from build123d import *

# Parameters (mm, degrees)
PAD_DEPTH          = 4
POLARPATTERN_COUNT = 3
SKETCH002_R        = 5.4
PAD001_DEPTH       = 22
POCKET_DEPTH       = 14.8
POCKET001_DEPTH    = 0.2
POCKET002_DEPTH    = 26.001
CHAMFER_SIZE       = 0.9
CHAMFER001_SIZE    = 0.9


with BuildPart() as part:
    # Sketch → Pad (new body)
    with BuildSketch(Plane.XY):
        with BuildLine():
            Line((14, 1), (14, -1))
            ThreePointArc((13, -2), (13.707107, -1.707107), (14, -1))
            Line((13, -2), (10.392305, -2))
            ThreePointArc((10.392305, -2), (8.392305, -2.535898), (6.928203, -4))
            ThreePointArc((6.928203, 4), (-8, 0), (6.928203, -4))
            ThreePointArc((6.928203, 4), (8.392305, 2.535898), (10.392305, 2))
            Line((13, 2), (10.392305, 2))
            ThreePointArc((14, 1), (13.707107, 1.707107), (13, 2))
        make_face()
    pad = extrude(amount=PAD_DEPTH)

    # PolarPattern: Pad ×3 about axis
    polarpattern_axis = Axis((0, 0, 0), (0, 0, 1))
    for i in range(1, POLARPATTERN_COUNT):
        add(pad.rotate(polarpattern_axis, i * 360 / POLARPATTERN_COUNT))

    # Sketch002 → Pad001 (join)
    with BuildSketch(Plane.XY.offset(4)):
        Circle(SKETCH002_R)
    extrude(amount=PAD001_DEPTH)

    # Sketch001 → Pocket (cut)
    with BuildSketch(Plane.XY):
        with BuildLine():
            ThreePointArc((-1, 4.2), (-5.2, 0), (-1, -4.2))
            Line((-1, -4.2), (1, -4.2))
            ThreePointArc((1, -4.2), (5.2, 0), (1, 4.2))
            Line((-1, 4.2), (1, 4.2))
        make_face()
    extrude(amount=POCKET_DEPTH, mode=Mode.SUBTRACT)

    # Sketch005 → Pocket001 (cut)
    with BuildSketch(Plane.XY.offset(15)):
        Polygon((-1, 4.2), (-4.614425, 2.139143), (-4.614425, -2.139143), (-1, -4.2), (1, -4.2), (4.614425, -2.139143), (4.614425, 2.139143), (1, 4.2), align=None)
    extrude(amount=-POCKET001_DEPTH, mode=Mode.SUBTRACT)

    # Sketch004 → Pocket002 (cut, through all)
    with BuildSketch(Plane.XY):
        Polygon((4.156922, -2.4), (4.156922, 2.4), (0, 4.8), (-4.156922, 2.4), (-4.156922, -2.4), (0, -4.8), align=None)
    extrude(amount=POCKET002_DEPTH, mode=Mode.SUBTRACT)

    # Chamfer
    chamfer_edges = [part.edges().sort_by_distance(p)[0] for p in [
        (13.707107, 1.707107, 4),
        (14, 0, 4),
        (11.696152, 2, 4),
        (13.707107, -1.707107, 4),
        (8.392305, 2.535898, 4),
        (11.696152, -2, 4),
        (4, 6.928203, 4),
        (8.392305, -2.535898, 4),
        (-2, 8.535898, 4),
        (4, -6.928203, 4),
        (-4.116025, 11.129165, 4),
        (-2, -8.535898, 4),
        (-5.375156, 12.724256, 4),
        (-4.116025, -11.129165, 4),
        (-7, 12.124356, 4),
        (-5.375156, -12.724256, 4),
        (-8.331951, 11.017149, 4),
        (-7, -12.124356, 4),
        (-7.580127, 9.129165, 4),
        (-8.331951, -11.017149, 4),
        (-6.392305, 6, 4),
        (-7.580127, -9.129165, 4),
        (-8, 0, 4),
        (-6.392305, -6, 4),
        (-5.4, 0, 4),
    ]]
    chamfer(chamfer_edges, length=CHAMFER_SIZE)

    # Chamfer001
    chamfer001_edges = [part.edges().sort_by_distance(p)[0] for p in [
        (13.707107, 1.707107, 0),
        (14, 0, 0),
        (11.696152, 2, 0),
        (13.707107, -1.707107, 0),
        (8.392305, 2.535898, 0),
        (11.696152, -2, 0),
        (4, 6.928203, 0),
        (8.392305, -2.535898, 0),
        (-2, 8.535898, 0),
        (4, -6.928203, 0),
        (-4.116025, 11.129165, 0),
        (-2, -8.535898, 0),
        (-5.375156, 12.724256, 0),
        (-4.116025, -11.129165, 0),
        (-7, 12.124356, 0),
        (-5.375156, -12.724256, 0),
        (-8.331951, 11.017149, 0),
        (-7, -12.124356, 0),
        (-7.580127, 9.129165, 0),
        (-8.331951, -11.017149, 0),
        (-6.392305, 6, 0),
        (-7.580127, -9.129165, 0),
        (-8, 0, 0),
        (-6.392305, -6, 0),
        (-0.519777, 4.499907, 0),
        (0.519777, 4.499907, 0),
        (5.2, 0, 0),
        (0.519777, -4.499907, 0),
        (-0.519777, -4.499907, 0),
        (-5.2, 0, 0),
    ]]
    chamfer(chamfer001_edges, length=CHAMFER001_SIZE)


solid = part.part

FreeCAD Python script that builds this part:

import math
import FreeCAD as App
import Part
import Sketcher
from FreeCAD import Vector
Q = App.Units.Quantity


def edges_at(feature, points):
    """Names of the edges that pass closest to the given points."""
    edges = feature.Shape.Edges
    near = lambda p: min(range(len(edges)), key=lambda i: edges[i].distToShape(Part.Vertex(*p))[0])
    return sorted({f"Edge{near(p) + 1}" for p in points})

doc = App.newDocument("Part")
params = doc.addObject("Spreadsheet::Sheet", "Params")
for row, (alias, value) in enumerate([
    ("sketch1_radius", "0.999999 mm"),
    ("sketch1_radius2", "3.999999 mm"),
    ("sketch1_radius3", "8 mm"),
    ("sketch1_height", "2 mm"),
    ("pad1_length", "4 mm"),
    ("sketch2_diameter", "10.8 mm"),
    ("pad2_length", "22 mm"),
    ("sketch3_radius", "4.2 mm"),
    ("sketch3_width", "2 mm"),
    ("pocket1_length", "14.8 mm"),
    ("sketch4_width", "2 mm"),
    ("pocket2_length", "0.2 mm"),
    ("sketch5_height", "4.8 mm"),
    ("sketch5_length", "4.8 mm"),
    ("chamfer_size", "0.9 mm"),
    ("chamfer2_size", "0.9 mm"),
], start=1):
    params.set(f"A{row}", alias)
    params.set(f"B{row}", "=" + value)
    params.setAlias(f"B{row}", alias)

body = doc.addObject("PartDesign::Body", "Body")

# Sketch on XY plane
sketch1 = doc.addObject("Sketcher::SketchObject", "Sketch")
body.addObject(sketch1)
sketch1.AttachmentSupport = (doc.XY_Plane, [""])
sketch1.MapMode = "FlatFace"
sketch1.addGeometry([
    Part.LineSegment(Vector(14, -1, 0), Vector(14, 1, 0)),  # 0
    Part.ArcOfCircle(Part.Circle(Vector(13.000001, 1.000001, 0), Vector(0, 0, 1), 0.999999), math.radians(-0.000043), math.radians(90.000043)),  # 1
    Part.LineSegment(Vector(13, 2, 0), Vector(10.392305, 2, 0)),  # 2
    Part.ArcOfCircle(Part.Circle(Vector(10.392304, 5.999999, 0), Vector(0, 0, 1), 3.999999), math.radians(-150.000008), math.radians(-89.999987)),  # 3
    Part.ArcOfCircle(Part.Circle(Vector(0, 0, 0), Vector(0, 0, 1), 8), math.radians(30), math.radians(330)),  # 4
    Part.ArcOfCircle(Part.Circle(Vector(10.392304, -5.999999, 0), Vector(0, 0, 1), 3.999999), math.radians(89.999987), math.radians(150.000008)),  # 5
    Part.LineSegment(Vector(10.392305, -2, 0), Vector(13, -2, 0)),  # 6
    Part.ArcOfCircle(Part.Circle(Vector(13.000001, -1.000001, 0), Vector(0, 0, 1), 0.999999), math.radians(-90.000043), math.radians(0.000043)),  # 7
], False)
sketch1.addConstraint([
    Sketcher.Constraint("Tangent", 0, 2, 1, 1),
    Sketcher.Constraint("Tangent", 1, 2, 2, 1),
    Sketcher.Constraint("Tangent", 2, 2, 3, 2),
    Sketcher.Constraint("Tangent", 3, 1, 4, 1),
    Sketcher.Constraint("Tangent", 4, 2, 5, 2),
    Sketcher.Constraint("Tangent", 5, 1, 6, 1),
    Sketcher.Constraint("Tangent", 6, 2, 7, 1),
    Sketcher.Constraint("Tangent", 7, 2, 0, 1),
    Sketcher.Constraint("Vertical", 0),
    Sketcher.Constraint("Horizontal", 2),
    Sketcher.Constraint("Horizontal", 6),
    Sketcher.Constraint("Coincident", 4, 3, -1, 1),
    Sketcher.Constraint("Equal", 3, 5),
    Sketcher.Constraint("Equal", 1, 7),
    Sketcher.Constraint("Vertical", 3, 3, 5, 3),
    Sketcher.Constraint("Radius", 1, 0.999999),
    Sketcher.Constraint("Radius", 3, 3.999999),
    Sketcher.Constraint("Radius", 4, 8.0),
    Sketcher.Constraint("DistanceY", 0, 1, 0, 2, 2.0),
    Sketcher.Constraint("DistanceX", -1, 1, 1, 3, 13.000001),
])
sketch1.setExpression("Constraints[15]", "Params.sketch1_radius")
sketch1.setExpression("Constraints[16]", "Params.sketch1_radius2")
sketch1.setExpression("Constraints[17]", "Params.sketch1_radius3")
sketch1.setExpression("Constraints[18]", "Params.sketch1_height")
pad1 = doc.addObject("PartDesign::Pad", "Pad")
body.addObject(pad1)
pad1.Profile = sketch1
pad1.setExpression("Length", "Params.pad1_length")
doc.recompute()

polarpattern = doc.addObject("PartDesign::PolarPattern", "PolarPattern")
body.addObject(polarpattern)
polarpattern.Originals = [pad1]
polarpattern.Axis = (doc.Z_Axis, [""])
polarpattern.Angle = 360
polarpattern.Occurrences = 3
body.Tip = polarpattern

# Sketch on XY plane
sketch2 = doc.addObject("Sketcher::SketchObject", "Sketch001")
body.addObject(sketch2)
sketch2.AttachmentSupport = (doc.XY_Plane, [""])
sketch2.MapMode = "FlatFace"
sketch2.AttachmentOffset = App.Placement(Vector(0, 0, 4), App.Rotation())
sketch2.addGeometry(Part.Circle(Vector(0, 0, 0), Vector(0, 0, 1), 5.4), False)
sketch2.addConstraint([
    Sketcher.Constraint("Coincident", 0, 3, -1, 1),
    Sketcher.Constraint("Diameter", 0, 10.8),
])
sketch2.setExpression("Constraints[1]", "Params.sketch2_diameter")
pad2 = doc.addObject("PartDesign::Pad", "Pad001")
body.addObject(pad2)
pad2.Profile = sketch2
pad2.setExpression("Length", "Params.pad2_length")

# Sketch on XY plane
sketch3 = doc.addObject("Sketcher::SketchObject", "Sketch002")
body.addObject(sketch3)
sketch3.AttachmentSupport = (doc.XY_Plane, [""])
sketch3.MapMode = "FlatFace"
sketch3.addGeometry([
    Part.ArcOfCircle(Part.Circle(Vector(-1, 0, 0), Vector(0, 0, 1), 4.2), math.radians(90), math.radians(270)),
    Part.LineSegment(Vector(-1, -4.2, 0), Vector(1, -4.2, 0)),
    Part.ArcOfCircle(Part.Circle(Vector(1, 0, 0), Vector(0, 0, 1), 4.2), math.radians(-90), math.radians(90)),
    Part.LineSegment(Vector(1, 4.2, 0), Vector(-1, 4.2, 0)),
], False)
sketch3.addConstraint([
    Sketcher.Constraint("Tangent", 0, 2, 1, 1),
    Sketcher.Constraint("Tangent", 1, 2, 2, 1),
    Sketcher.Constraint("Tangent", 2, 2, 3, 1),
    Sketcher.Constraint("Tangent", 3, 2, 0, 1),
    Sketcher.Constraint("Horizontal", 1),
    Sketcher.Constraint("Horizontal", 3),
    Sketcher.Constraint("Symmetric", 0, 3, 2, 3, -1, 1),
    Sketcher.Constraint("Radius", 0, 4.2),
    Sketcher.Constraint("DistanceX", 1, 1, 1, 2, 2.0),
])
sketch3.setExpression("Constraints[7]", "Params.sketch3_radius")
sketch3.setExpression("Constraints[8]", "Params.sketch3_width")
pocket1 = doc.addObject("PartDesign::Pocket", "Pocket")
body.addObject(pocket1)
pocket1.Profile = sketch3
pocket1.setExpression("Length", "Params.pocket1_length")
pocket1.Reversed = True

# Sketch on XY plane
sketch4 = doc.addObject("Sketcher::SketchObject", "Sketch003")
body.addObject(sketch4)
sketch4.AttachmentSupport = (doc.XY_Plane, [""])
sketch4.MapMode = "FlatFace"
sketch4.AttachmentOffset = App.Placement(Vector(0, 0, 15), App.Rotation())
sketch4.addGeometry([
    Part.LineSegment(Vector(-1, 4.2, 0), Vector(-4.614425, 2.139143, 0)),  # 0
    Part.LineSegment(Vector(-4.614425, 2.139143, 0), Vector(-4.614425, -2.139143, 0)),  # 1
    Part.LineSegment(Vector(-4.614425, -2.139143, 0), Vector(-1, -4.2, 0)),  # 2
    Part.LineSegment(Vector(-1, -4.2, 0), Vector(1, -4.2, 0)),  # 3
    Part.LineSegment(Vector(1, -4.2, 0), Vector(4.614425, -2.139143, 0)),  # 4
    Part.LineSegment(Vector(4.614425, -2.139143, 0), Vector(4.614425, 2.139143, 0)),  # 5
    Part.LineSegment(Vector(4.614425, 2.139143, 0), Vector(1, 4.2, 0)),  # 6
    Part.LineSegment(Vector(1, 4.2, 0), Vector(-1, 4.2, 0)),  # 7
], False)
sketch4.addConstraint([
    Sketcher.Constraint("Coincident", 0, 2, 1, 1),
    Sketcher.Constraint("Coincident", 1, 2, 2, 1),
    Sketcher.Constraint("Coincident", 2, 2, 3, 1),
    Sketcher.Constraint("Coincident", 3, 2, 4, 1),
    Sketcher.Constraint("Coincident", 4, 2, 5, 1),
    Sketcher.Constraint("Coincident", 5, 2, 6, 1),
    Sketcher.Constraint("Coincident", 6, 2, 7, 1),
    Sketcher.Constraint("Coincident", 7, 2, 0, 1),
    Sketcher.Constraint("Vertical", 1),
    Sketcher.Constraint("Horizontal", 3),
    Sketcher.Constraint("Vertical", 5),
    Sketcher.Constraint("Horizontal", 7),
    Sketcher.Constraint("Symmetric", 0, 2, 4, 2, -1, 1),
    Sketcher.Constraint("Symmetric", 2, 2, 6, 2, -1, 1),
    Sketcher.Constraint("Parallel", 0, 4),
    Sketcher.Constraint("Parallel", 2, 6),
    Sketcher.Constraint("Horizontal", 1, 2, 4, 2),
    Sketcher.Constraint("Vertical", 3, 2, 6, 2),
    Sketcher.Constraint("DistanceX", 3, 1, 3, 2, 2.0),
    Sketcher.Constraint("DistanceY", 2, 2, -1, 1, 4.2),
    Sketcher.Constraint("DistanceY", 1, 2, 1, 1, 4.278286),
    Sketcher.Constraint("DistanceX", 1, 2, 4, 2, 9.22885),
])
sketch4.setExpression("Constraints[18]", "Params.sketch4_width")
pocket2 = doc.addObject("PartDesign::Pocket", "Pocket001")
body.addObject(pocket2)
pocket2.Profile = sketch4
pocket2.setExpression("Length", "Params.pocket2_length")

# Sketch on XY plane
sketch5 = doc.addObject("Sketcher::SketchObject", "Sketch004")
body.addObject(sketch5)
sketch5.AttachmentSupport = (doc.XY_Plane, [""])
sketch5.MapMode = "FlatFace"
sketch5.addGeometry([
    Part.LineSegment(Vector(4.156922, -2.4, 0), Vector(4.156922, 2.4, 0)),  # 0
    Part.LineSegment(Vector(4.156922, 2.4, 0), Vector(0, 4.8, 0)),  # 1
    Part.LineSegment(Vector(0, 4.8, 0), Vector(-4.156922, 2.4, 0)),  # 2
    Part.LineSegment(Vector(-4.156922, 2.4, 0), Vector(-4.156922, -2.4, 0)),  # 3
    Part.LineSegment(Vector(-4.156922, -2.4, 0), Vector(0, -4.8, 0)),  # 4
    Part.LineSegment(Vector(0, -4.8, 0), Vector(4.156922, -2.4, 0)),  # 5
], False)
sketch5.addConstraint([
    Sketcher.Constraint("Coincident", 0, 2, 1, 1),
    Sketcher.Constraint("Coincident", 1, 2, 2, 1),
    Sketcher.Constraint("Coincident", 2, 2, 3, 1),
    Sketcher.Constraint("Coincident", 3, 2, 4, 1),
    Sketcher.Constraint("Coincident", 4, 2, 5, 1),
    Sketcher.Constraint("Coincident", 5, 2, 0, 1),
    Sketcher.Constraint("Vertical", 0),
    Sketcher.Constraint("Vertical", 3),
    Sketcher.Constraint("Symmetric", 0, 2, 3, 2, -1, 1),
    Sketcher.Constraint("Symmetric", 1, 2, 4, 2, -1, 1),
    Sketcher.Constraint("PointOnObject", 1, 2, -2),
    Sketcher.Constraint("Parallel", 2, 5),
    Sketcher.Constraint("Horizontal", 0, 2, 2, 2),
    Sketcher.Constraint("Angle", 1, Q("150 deg")),
    Sketcher.Constraint("DistanceY", 0, 1, 0, 2, 4.8),
    Sketcher.Constraint("Distance", 1, 4.8),
])
sketch5.setExpression("Constraints[14]", "Params.sketch5_height")
sketch5.setExpression("Constraints[15]", "Params.sketch5_length")
pocket3 = doc.addObject("PartDesign::Pocket", "Pocket002")
body.addObject(pocket3)
pocket3.Profile = sketch5
pocket3.Type = "ThroughAll"
pocket3.Reversed = True
doc.recompute()

chamfer = doc.addObject("PartDesign::Chamfer", "Chamfer")
body.addObject(chamfer)
chamfer.Base = (pocket3, edges_at(pocket3, [
    (13.707, 1.707, 4),
    (14, 0, 4),
    (11.696, 2, 4),
    (13.707, -1.707, 4),
    (8.392, 2.536, 4),
    (11.696, -2, 4),
    (4, 6.928, 4),
    (8.392, -2.536, 4),
    (-2, 8.536, 4),
    (4, -6.928, 4),
    (-4.116, 11.129, 4),
    (-2, -8.536, 4),
    (-5.375, 12.724, 4),
    (-4.116, -11.129, 4),
    (-7, 12.124, 4),
    (-5.375, -12.724, 4),
    (-8.332, 11.017, 4),
    (-7, -12.124, 4),
    (-7.58, 9.129, 4),
    (-8.332, -11.017, 4),
    (-6.392, 6, 4),
    (-7.58, -9.129, 4),
    (-8, 0, 4),
    (-6.392, -6, 4),
    (-5.4, 0, 4),
]))
chamfer.setExpression("Size", "Params.chamfer_size")
doc.recompute()

chamfer2 = doc.addObject("PartDesign::Chamfer", "Chamfer001")
body.addObject(chamfer2)
chamfer2.Base = (chamfer, edges_at(chamfer, [
    (13.707, 1.707, 0),
    (14, 0, 0),
    (11.696, 2, 0),
    (13.707, -1.707, 0),
    (8.392, 2.536, 0),
    (11.696, -2, 0),
    (4, 6.928, 0),
    (8.392, -2.536, 0),
    (-2, 8.536, 0),
    (4, -6.928, 0),
    (-4.116, 11.129, 0),
    (-2, -8.536, 0),
    (-5.375, 12.724, 0),
    (-4.116, -11.129, 0),
    (-7, 12.124, 0),
    (-5.375, -12.724, 0),
    (-8.332, 11.017, 0),
    (-7, -12.124, 0),
    (-7.58, 9.129, 0),
    (-8.332, -11.017, 0),
    (-6.392, 6, 0),
    (-7.58, -9.129, 0),
    (-8, 0, 0),
    (-6.392, -6, 0),
    (-0.52, 4.5, 0),
    (0.52, 4.5, 0),
    (5.2, 0, 0),
    (0.52, -4.5, 0),
    (-0.52, -4.5, 0),
    (-5.2, 0, 0),
]))
chamfer2.setExpression("Size", "Params.chamfer2_size")

doc.recompute()
